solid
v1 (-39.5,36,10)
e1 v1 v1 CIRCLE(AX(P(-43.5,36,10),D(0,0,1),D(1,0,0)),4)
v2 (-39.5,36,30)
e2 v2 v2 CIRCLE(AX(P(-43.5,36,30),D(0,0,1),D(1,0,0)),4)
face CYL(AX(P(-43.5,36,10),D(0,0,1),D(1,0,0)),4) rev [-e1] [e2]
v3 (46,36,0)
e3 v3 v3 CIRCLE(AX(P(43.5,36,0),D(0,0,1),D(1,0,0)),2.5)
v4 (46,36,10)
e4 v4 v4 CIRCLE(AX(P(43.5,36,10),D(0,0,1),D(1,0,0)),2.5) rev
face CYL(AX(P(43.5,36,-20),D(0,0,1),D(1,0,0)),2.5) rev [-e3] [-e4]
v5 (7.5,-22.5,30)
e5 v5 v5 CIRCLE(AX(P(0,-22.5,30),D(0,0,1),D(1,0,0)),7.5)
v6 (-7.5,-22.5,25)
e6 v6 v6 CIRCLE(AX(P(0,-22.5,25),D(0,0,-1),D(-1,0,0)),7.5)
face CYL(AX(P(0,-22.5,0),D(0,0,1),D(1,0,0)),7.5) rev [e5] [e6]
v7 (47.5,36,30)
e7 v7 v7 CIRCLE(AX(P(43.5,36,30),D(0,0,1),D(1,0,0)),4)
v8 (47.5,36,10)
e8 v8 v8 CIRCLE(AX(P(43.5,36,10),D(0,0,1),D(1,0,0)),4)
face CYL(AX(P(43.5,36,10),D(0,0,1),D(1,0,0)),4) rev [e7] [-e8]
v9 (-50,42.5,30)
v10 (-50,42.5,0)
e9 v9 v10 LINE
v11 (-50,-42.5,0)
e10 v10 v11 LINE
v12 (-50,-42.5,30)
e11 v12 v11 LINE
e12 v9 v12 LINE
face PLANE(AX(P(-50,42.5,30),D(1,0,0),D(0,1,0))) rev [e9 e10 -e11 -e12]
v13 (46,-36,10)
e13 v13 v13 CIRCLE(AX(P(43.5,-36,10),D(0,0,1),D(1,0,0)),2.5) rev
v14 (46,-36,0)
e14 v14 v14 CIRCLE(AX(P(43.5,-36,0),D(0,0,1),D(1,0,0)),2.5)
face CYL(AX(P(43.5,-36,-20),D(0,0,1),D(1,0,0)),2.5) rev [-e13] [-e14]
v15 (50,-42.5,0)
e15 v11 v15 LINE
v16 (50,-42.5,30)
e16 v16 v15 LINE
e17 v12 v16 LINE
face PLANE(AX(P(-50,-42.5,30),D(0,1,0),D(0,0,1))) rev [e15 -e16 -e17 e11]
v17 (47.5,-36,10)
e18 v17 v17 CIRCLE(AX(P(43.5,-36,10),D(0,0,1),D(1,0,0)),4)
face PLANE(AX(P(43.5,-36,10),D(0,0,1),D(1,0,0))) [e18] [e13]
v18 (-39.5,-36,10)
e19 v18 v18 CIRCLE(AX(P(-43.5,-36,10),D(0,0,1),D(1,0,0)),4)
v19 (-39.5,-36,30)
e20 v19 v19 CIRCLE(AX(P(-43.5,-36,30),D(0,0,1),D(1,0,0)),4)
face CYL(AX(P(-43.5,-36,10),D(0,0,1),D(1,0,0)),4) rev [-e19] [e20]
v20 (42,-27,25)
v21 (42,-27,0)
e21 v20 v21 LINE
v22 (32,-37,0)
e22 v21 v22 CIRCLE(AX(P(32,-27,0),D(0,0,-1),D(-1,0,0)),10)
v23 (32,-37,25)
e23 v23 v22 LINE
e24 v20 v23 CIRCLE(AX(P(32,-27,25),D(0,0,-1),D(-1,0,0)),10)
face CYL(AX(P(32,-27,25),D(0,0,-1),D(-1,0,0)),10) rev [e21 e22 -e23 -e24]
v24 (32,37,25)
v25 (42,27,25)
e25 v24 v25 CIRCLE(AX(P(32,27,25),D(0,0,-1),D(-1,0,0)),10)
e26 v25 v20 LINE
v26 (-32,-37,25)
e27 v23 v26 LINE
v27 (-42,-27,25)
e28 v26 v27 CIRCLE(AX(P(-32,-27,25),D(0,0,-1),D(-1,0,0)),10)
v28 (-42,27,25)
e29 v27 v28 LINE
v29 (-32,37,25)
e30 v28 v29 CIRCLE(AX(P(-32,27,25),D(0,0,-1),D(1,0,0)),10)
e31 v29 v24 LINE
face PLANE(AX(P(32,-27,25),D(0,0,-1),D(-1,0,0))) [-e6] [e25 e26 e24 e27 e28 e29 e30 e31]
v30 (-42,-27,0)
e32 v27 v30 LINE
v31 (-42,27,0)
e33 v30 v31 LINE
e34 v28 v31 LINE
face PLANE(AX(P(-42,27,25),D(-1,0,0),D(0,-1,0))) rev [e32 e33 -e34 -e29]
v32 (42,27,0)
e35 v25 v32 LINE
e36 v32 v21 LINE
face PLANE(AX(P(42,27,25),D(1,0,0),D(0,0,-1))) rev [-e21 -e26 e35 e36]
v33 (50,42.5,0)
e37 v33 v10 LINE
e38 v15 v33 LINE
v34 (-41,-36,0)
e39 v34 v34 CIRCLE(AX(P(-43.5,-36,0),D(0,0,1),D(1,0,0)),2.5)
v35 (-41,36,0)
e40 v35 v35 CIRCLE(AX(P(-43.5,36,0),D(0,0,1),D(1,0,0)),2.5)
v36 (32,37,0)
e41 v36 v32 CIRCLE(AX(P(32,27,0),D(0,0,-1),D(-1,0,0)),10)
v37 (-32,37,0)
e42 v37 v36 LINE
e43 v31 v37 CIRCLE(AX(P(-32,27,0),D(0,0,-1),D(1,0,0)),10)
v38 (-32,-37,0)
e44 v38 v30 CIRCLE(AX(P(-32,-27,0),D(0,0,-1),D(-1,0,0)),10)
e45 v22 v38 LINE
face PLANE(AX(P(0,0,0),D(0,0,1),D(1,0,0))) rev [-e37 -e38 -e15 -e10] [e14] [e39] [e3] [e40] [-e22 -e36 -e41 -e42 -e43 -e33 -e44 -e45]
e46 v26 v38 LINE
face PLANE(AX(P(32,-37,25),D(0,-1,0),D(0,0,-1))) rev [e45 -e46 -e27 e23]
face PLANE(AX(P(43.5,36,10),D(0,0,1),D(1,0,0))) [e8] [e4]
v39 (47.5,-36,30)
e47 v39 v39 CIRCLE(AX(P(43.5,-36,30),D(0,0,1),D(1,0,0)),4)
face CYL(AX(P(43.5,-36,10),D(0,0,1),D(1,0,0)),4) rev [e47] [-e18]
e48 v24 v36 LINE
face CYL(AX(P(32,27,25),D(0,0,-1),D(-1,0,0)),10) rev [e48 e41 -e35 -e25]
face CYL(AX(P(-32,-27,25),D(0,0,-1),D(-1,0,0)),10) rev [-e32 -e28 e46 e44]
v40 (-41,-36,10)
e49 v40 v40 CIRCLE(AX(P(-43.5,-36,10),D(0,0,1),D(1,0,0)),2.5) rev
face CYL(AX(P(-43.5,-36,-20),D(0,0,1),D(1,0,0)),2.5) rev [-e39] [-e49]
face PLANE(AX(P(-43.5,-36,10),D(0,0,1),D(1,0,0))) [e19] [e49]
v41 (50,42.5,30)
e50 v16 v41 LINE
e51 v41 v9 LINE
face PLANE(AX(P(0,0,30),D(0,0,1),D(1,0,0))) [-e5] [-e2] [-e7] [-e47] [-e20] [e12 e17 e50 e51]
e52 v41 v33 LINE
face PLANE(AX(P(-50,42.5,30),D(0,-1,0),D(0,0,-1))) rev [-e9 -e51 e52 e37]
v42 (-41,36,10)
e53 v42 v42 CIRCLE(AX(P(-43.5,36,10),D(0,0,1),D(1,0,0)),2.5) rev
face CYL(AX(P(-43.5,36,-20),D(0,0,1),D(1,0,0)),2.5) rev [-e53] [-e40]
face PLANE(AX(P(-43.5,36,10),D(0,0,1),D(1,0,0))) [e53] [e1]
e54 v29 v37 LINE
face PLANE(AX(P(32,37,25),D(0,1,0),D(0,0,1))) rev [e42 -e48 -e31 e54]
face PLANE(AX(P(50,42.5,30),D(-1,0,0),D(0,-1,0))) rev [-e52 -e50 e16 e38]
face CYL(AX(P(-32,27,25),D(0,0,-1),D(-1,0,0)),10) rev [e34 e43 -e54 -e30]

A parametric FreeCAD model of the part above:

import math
import FreeCAD as App
import Part
import Sketcher

V = App.Vector
Q = App.Units.Quantity

doc = App.newDocument("Part")
body = doc.addObject("PartDesign::Body", "Body")

# Sketch on XY plane
sketch1 = body.newObject("Sketcher::SketchObject", "Sketch")
sketch1.AttachmentSupport = (doc.getObject("XY_Plane"), [""])
sketch1.MapMode = "FlatFace"
sketch1.addGeometry([
    Part.LineSegment(V(-50, 42, 0), V(-50, -42, 0)),
    Part.LineSegment(V(-50, -42, 0), V(50, -42, 0)),
    Part.LineSegment(V(50, -42, 0), V(50, 42, 0)),
    Part.LineSegment(V(50, 42, 0), V(-50, 42, 0)),
], False)
sketch1.addConstraint([
    Sketcher.Constraint("Coincident", 0, 2, 1, 1),
    Sketcher.Constraint("Coincident", 1, 2, 2, 1),
    Sketcher.Constraint("Coincident", 2, 2, 3, 1),
    Sketcher.Constraint("Coincident", 3, 2, 0, 1),
    Sketcher.Constraint("Vertical", 0),
    Sketcher.Constraint("Horizontal", 1),
    Sketcher.Constraint("Vertical", 2),
    Sketcher.Constraint("Horizontal", 3),
    Sketcher.Constraint("Symmetric", 0, 2, 2, 2, -1, 1),
    Sketcher.Constraint("DistanceX", 1, 1, 1, 2, Q("100 mm")),
    Sketcher.Constraint("DistanceY", 0, 2, 0, 1, Q("85 mm")),
])
pad1 = body.newObject("PartDesign::Pad", "Pad")
pad1.Profile = sketch1
pad1.Length = 30

# Sketch on XY plane
sketch2 = body.newObject("Sketcher::SketchObject", "Sketch001")
sketch2.AttachmentSupport = (doc.getObject("XY_Plane"), [""])
sketch2.MapMode = "FlatFace"
sketch2.AttachmentOffset = App.Placement(V(0, 0, 30), App.Rotation())
sketch2.addGeometry([
    Part.Circle(V(-43.5, 36, 0), V(0, 0, 1), 2.5),
    Part.Circle(V(43.5, 36, 0), V(0, 0, 1), 2.5),
    Part.Circle(V(43.5, -36, 0), V(0, 0, 1), 2.5),
    Part.Circle(V(-43.5, -36, 0), V(0, 0, 1), 2.5),
], False)
sketch2.addConstraint([
    Sketcher.Constraint("Equal", 0, 1),
    Sketcher.Constraint("Equal", 1, 2),
    Sketcher.Constraint("Equal", 2, 3),
    Sketcher.Constraint("Symmetric", 0, 3, 2, 3, -1, 1),
    Sketcher.Constraint("Symmetric", 1, 3, 3, 3, -1, 1),
    Sketcher.Constraint("Symmetric", 0, 3, 1, 3, -2),
    Sketcher.Constraint("Diameter", 0, Q("5 mm")),
    Sketcher.Constraint("DistanceY", -1, 1, 0, 3, Q("36 mm")),
    Sketcher.Constraint("DistanceX", 0, 3, 1, 3, Q("87 mm")),
])
pocket1 = body.newObject("PartDesign::Pocket", "Pocket")
pocket1.Profile = sketch2
pocket1.Length = 50

# Sketch on XY plane
sketch3 = body.newObject("Sketcher::SketchObject", "Sketch002")
sketch3.AttachmentSupport = (doc.getObject("XY_Plane"), [""])
sketch3.MapMode = "FlatFace"
sketch3.AttachmentOffset = App.Placement(V(0, 0, 30), App.Rotation())
sketch3.addGeometry([
    Part.Circle(V(-43.5, 36, 0), V(0, 0, 1), 4),
    Part.Circle(V(43.5, 36, 0), V(0, 0, 1), 4),
    Part.Circle(V(-43.5, -36, 0), V(0, 0, 1), 4),
    Part.Circle(V(43.5, -36, 0), V(0, 0, 1), 4),
], False)
sketch3.addConstraint([
    Sketcher.Constraint("Equal", 0, 1),
    Sketcher.Constraint("Equal", 1, 2),
    Sketcher.Constraint("Equal", 2, 3),
    Sketcher.Constraint("Symmetric", 1, 3, 2, 3, -1, 1),
    Sketcher.Constraint("Symmetric", 0, 3, 3, 3, -1, 1),
    Sketcher.Constraint("Symmetric", 0, 3, 1, 3, -2),
    Sketcher.Constraint("Diameter", 0, Q("8 mm")),
    Sketcher.Constraint("DistanceY", -1, 1, 0, 3, Q("36 mm")),
    Sketcher.Constraint("DistanceX", 0, 3, 1, 3, Q("87 mm")),
])
pocket2 = body.newObject("PartDesign::Pocket", "Pocket001")
pocket2.Profile = sketch3
pocket2.Length = 20

# Sketch on XY plane
sketch4 = body.newObject("Sketcher::SketchObject", "Sketch003")
sketch4.AttachmentSupport = (doc.getObject("XY_Plane"), [""])
sketch4.MapMode = "FlatFace"
sketch4.addGeometry([
    Part.LineSegment(V(-32, 37, 0), V(32, 37, 0)),  # 0
    Part.ArcOfCircle(Part.Circle(V(32, 27, 0), V(0, 0, 1), 10), math.radians(0), math.radians(90)),  # 1
    Part.LineSegment(V(42, 27, 0), V(42, -27, 0)),  # 2
    Part.ArcOfCircle(Part.Circle(V(32, -27, 0), V(0, 0, 1), 10), math.radians(-90), math.radians(0)),  # 3
    Part.LineSegment(V(32, -37, 0), V(-32, -37, 0)),  # 4
    Part.ArcOfCircle(Part.Circle(V(-32, -27, 0), V(0, 0, 1), 10), math.radians(180), math.radians(270)),  # 5
    Part.LineSegment(V(-42, -27, 0), V(-42, 27, 0)),  # 6
    Part.ArcOfCircle(Part.Circle(V(-32, 27, 0), V(0, 0, 1), 10), math.radians(90), math.radians(180)),  # 7
], False)
sketch4.addConstraint([
    Sketcher.Constraint("Tangent", 0, 2, 1, 2),
    Sketcher.Constraint("Tangent", 1, 1, 2, 1),
    Sketcher.Constraint("Tangent", 2, 2, 3, 2),
    Sketcher.Constraint("Tangent", 3, 1, 4, 1),
    Sketcher.Constraint("Tangent", 4, 2, 5, 2),
    Sketcher.Constraint("Tangent", 5, 1, 6, 1),
    Sketcher.Constraint("Tangent", 6, 2, 7, 2),
    Sketcher.Constraint("Tangent", 7, 1, 0, 1),
    Sketcher.Constraint("Horizontal", 0),
    Sketcher.Constraint("Vertical", 2),
    Sketcher.Constraint("Horizontal", 4),
    Sketcher.Constraint("Vertical", 6),
    Sketcher.Constraint("Equal", 1, 3),
    Sketcher.Constraint("Equal", 3, 5),
    Sketcher.Constraint("Equal", 5, 7),
    Sketcher.Constraint("Symmetric", 1, 3, 5, 3, -1, 1),
    Sketcher.Constraint("Radius", 1, Q("10 mm")),
    Sketcher.Constraint("DistanceX", 0, 1, 0, 2, Q("64 mm")),
    Sketcher.Constraint("DistanceY", 2, 2, 2, 1, Q("54 mm")),
])
pocket3 = body.newObject("PartDesign::Pocket", "Pocket002")
pocket3.Profile = sketch4
pocket3.Length = 25
pocket3.Reversed = True

# Sketch on XY plane
sketch5 = body.newObject("Sketcher::SketchObject", "Sketch004")
sketch5.AttachmentSupport = (doc.getObject("XY_Plane"), [""])
sketch5.MapMode = "FlatFace"
sketch5.AttachmentOffset = App.Placement(V(0, 0, 30), App.Rotation())
sketch5.addGeometry(Part.Circle(V(0, -22, 0), V(0, 0, 1), 8), False)
sketch5.addConstraint([
    Sketcher.Constraint("PointOnObject", 0, 3, -2),
    Sketcher.Constraint("Diameter", 0, Q("15 mm")),
    Sketcher.Constraint("DistanceY", 0, 3, -1, 1, Q("22.5 mm")),
])
pocket4 = body.newObject("PartDesign::Pocket", "Pocket003")
pocket4.Profile = sketch5
pocket4.Type = "ThroughAll"

doc.recompute()
